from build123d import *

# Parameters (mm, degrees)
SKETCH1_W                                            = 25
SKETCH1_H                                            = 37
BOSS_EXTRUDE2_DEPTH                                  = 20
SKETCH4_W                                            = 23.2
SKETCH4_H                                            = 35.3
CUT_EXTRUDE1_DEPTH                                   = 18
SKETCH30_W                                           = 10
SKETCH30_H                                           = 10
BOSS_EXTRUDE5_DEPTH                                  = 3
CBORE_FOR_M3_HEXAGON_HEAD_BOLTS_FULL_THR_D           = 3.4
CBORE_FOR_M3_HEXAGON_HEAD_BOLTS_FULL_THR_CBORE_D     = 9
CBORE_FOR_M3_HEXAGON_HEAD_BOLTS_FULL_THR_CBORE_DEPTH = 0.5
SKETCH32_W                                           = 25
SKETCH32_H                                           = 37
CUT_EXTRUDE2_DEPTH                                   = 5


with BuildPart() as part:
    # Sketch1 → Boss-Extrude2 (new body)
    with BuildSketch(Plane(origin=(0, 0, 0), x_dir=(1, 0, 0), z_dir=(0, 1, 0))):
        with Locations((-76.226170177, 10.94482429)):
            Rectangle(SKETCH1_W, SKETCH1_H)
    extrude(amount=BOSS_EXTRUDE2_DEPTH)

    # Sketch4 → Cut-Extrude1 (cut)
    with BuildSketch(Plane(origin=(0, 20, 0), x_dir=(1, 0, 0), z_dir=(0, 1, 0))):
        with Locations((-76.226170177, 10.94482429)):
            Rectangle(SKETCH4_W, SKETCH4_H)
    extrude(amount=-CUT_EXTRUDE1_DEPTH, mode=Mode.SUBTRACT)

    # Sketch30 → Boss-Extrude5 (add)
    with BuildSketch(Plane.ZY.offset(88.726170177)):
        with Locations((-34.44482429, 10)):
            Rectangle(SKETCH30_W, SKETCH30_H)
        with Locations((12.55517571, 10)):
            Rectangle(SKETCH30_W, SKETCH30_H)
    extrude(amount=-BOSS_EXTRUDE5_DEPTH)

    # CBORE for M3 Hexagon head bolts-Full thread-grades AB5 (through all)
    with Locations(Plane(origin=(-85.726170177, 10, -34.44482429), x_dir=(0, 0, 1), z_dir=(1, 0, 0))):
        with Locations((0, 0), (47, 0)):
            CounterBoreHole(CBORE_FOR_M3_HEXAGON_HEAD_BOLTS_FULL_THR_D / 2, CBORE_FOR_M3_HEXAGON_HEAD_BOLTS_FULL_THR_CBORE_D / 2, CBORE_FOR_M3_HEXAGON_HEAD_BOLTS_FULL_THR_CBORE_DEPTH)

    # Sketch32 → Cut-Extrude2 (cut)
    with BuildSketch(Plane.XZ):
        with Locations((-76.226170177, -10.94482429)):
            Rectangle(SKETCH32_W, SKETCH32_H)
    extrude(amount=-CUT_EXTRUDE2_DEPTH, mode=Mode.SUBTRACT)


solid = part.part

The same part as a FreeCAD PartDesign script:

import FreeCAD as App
import Part
import Sketcher
from FreeCAD import Vector
Q = App.Units.Quantity

doc = App.newDocument("Part")
body = doc.addObject("PartDesign::Body", "Body")

sketch1 = body.newObject("Sketcher::SketchObject", "Sketch")
sketch1.AttachmentSupport = (doc.getObject("XZ_Plane"), [""])
sketch1.MapMode = "FlatFace"
sketch1.addGeometry(Part.LineSegment(Vector(-89, -29, 0), Vector(-89, 8, 0)), False)
sketch1.addGeometry(Part.LineSegment(Vector(-89, 8, 0), Vector(-64, 8, 0)), False)
sketch1.addGeometry(Part.LineSegment(Vector(-64, 8, 0), Vector(-64, -29, 0)), False)
sketch1.addGeometry(Part.LineSegment(Vector(-64, -29, 0), Vector(-89, -29, 0)), False)
sketch1.addConstraint(Sketcher.Constraint("Coincident", 0, 2, 1, 1))
sketch1.addConstraint(Sketcher.Constraint("Coincident", 1, 2, 2, 1))
sketch1.addConstraint(Sketcher.Constraint("Coincident", 2, 2, 3, 1))
sketch1.addConstraint(Sketcher.Constraint("Coincident", 3, 2, 0, 1))
sketch1.addConstraint(Sketcher.Constraint("Vertical", 0))
sketch1.addConstraint(Sketcher.Constraint("Horizontal", 1))
sketch1.addConstraint(Sketcher.Constraint("Vertical", 2))
sketch1.addConstraint(Sketcher.Constraint("Horizontal", 3))
sketch1.addConstraint(Sketcher.Constraint("DistanceX", 1, 1, 1, 2, Q("25 mm")))
sketch1.addConstraint(Sketcher.Constraint("DistanceY", 0, 1, 0, 2, Q("37 mm")))
sketch1.addConstraint(Sketcher.Constraint("DistanceX", 0, 2, -1, 1, Q("88.72617 mm")))
sketch1.addConstraint(Sketcher.Constraint("DistanceY", -1, 1, 0, 2, Q("7.555176 mm")))
pad1 = body.newObject("PartDesign::Pad", "Pad")
pad1.Profile = sketch1
pad1.Length = 20
pad1.Reversed = True

sketch2 = body.newObject("Sketcher::SketchObject", "Sketch001")
sketch2.AttachmentSupport = (doc.getObject("XZ_Plane"), [""])
sketch2.MapMode = "FlatFace"
sketch2.AttachmentOffset = App.Placement(Vector(0, 0, -20), App.Rotation())
sketch2.addGeometry(Part.LineSegment(Vector(-88, -29, 0), Vector(-88, 7, 0)), False)
sketch2.addGeometry(Part.LineSegment(Vector(-88, 7, 0), Vector(-65, 7, 0)), False)
sketch2.addGeometry(Part.LineSegment(Vector(-65, 7, 0), Vector(-65, -29, 0)), False)
sketch2.addGeometry(Part.LineSegment(Vector(-65, -29, 0), Vector(-88, -29, 0)), False)
sketch2.addConstraint(Sketcher.Constraint("Coincident", 0, 2, 1, 1))
sketch2.addConstraint(Sketcher.Constraint("Coincident", 1, 2, 2, 1))
sketch2.addConstraint(Sketcher.Constraint("Coincident", 2, 2, 3, 1))
sketch2.addConstraint(Sketcher.Constraint("Coincident", 3, 2, 0, 1))
sketch2.addConstraint(Sketcher.Constraint("Vertical", 0))
sketch2.addConstraint(Sketcher.Constraint("Horizontal", 1))
sketch2.addConstraint(Sketcher.Constraint("Vertical", 2))
sketch2.addConstraint(Sketcher.Constraint("Horizontal", 3))
sketch2.addConstraint(Sketcher.Constraint("DistanceX", 1, 1, 1, 2, Q("23.2 mm")))
sketch2.addConstraint(Sketcher.Constraint("DistanceY", 0, 1, 0, 2, Q("35.3 mm")))
sketch2.addConstraint(Sketcher.Constraint("DistanceX", 0, 2, -1, 1, Q("87.82617 mm")))
sketch2.addConstraint(Sketcher.Constraint("DistanceY", -1, 1, 0, 2, Q("6.705176 mm")))
pocket1 = body.newObject("PartDesign::Pocket", "Pocket")
pocket1.Profile = sketch2
pocket1.Length = 18
pocket1.Reversed = True

sketch3 = body.newObject("Sketcher::SketchObject", "Sketch002")
sketch3.AttachmentSupport = (doc.getObject("YZ_Plane"), [""])
sketch3.MapMode = "FlatFace"
sketch3.AttachmentOffset = App.Placement(Vector(0, 0, -88.72617), App.Rotation())
sketch3.addGeometry(Part.LineSegment(Vector(15, -39, 0), Vector(5, -39, 0)), False)
sketch3.addGeometry(Part.LineSegment(Vector(5, -39, 0), Vector(5, -29, 0)), False)
sketch3.addGeometry(Part.LineSegment(Vector(5, -29, 0), Vector(15, -29, 0)), False)
sketch3.addGeometry(Part.LineSegment(Vector(15, -29, 0), Vector(15, -39, 0)), False)
sketch3.addGeometry(Part.LineSegment(Vector(15, 8, 0), Vector(5, 8, 0)), False)
sketch3.addGeometry(Part.LineSegment(Vector(5, 8, 0), Vector(5, 18, 0)), False)
sketch3.addGeometry(Part.LineSegment(Vector(5, 18, 0), Vector(15, 18, 0)), False)
sketch3.addGeometry(Part.LineSegment(Vector(15, 18, 0), Vector(15, 8, 0)), False)
sketch3.addConstraint(Sketcher.Constraint("Coincident", 0, 2, 1, 1))
sketch3.addConstraint(Sketcher.Constraint("Coincident", 1, 2, 2, 1))
sketch3.addConstraint(Sketcher.Constraint("Coincident", 2, 2, 3, 1))
sketch3.addConstraint(Sketcher.Constraint("Coincident", 3, 2, 0, 1))
sketch3.addConstraint(Sketcher.Constraint("Coincident", 4, 2, 5, 1))
sketch3.addConstraint(Sketcher.Constraint("Coincident", 5, 2, 6, 1))
sketch3.addConstraint(Sketcher.Constraint("Coincident", 6, 2, 7, 1))
sketch3.addConstraint(Sketcher.Constraint("Coincident", 7, 2, 4, 1))
sketch3.addConstraint(Sketcher.Constraint("Horizontal", 0))
sketch3.addConstraint(Sketcher.Constraint("Vertical", 1))
sketch3.addConstraint(Sketcher.Constraint("Horizontal", 2))
sketch3.addConstraint(Sketcher.Constraint("Vertical", 3))
sketch3.addConstraint(Sketcher.Constraint("Horizontal", 4))
sketch3.addConstraint(Sketcher.Constraint("Vertical", 5))
sketch3.addConstraint(Sketcher.Constraint("Horizontal", 6))
sketch3.addConstraint(Sketcher.Constraint("Vertical", 7))
sketch3.addConstraint(Sketcher.Constraint("Vertical", 1, 2, 4, 2))
sketch3.addConstraint(Sketcher.Constraint("Vertical", 3, 2, 6, 2))
sketch3.addConstraint(Sketcher.Constraint("Equal", 6, 1))
sketch3.addConstraint(Sketcher.Constraint("Equal", 3, 5))
sketch3.addConstraint(Sketcher.Constraint("DistanceX", 0, 2, 0, 1, Q("10 mm")))
sketch3.addConstraint(Sketcher.Constraint("DistanceX", -1, 1, 0, 2, Q("5 mm")))
sketch3.addConstraint(Sketcher.Constraint("DistanceY", 1, 2, 4, 2, Q("37 mm")))
sketch3.addConstraint(Sketcher.Constraint("DistanceY", 0, 2, -1, 1, Q("39.444824 mm")))
pad2 = body.newObject("PartDesign::Pad", "Pad001")
pad2.Profile = sketch3
pad2.Length = 3

sketch4 = body.newObject("Sketcher::SketchObject", "Sketch003")
sketch4.AttachmentSupport = (doc.getObject("YZ_Plane"), [""])
sketch4.MapMode = "FlatFace"
sketch4.AttachmentOffset = App.Placement(Vector(0, 0, -85.72617), App.Rotation())
sketch4.addGeometry(Part.Circle(Vector(10, -34.4, 0), Vector(0, 0, 1), 1.7), False)
sketch4.addGeometry(Part.Circle(Vector(10, 12.6, 0), Vector(0, 0, 1), 1.7), False)
sketch4.addConstraint(Sketcher.Constraint("Equal", 0, 1))
sketch4.addConstraint(Sketcher.Constraint("Vertical", 0, 3, 1, 3))
sketch4.addConstraint(Sketcher.Constraint("Diameter", 0, Q("3.4 mm")))
sketch4.addConstraint(Sketcher.Constraint("DistanceX", -1, 1, 0, 3, Q("10 mm")))
sketch4.addConstraint(Sketcher.Constraint("DistanceY", 0, 3, 1, 3, Q("47 mm")))
sketch4.addConstraint(Sketcher.Constraint("DistanceY", 0, 3, -1, 1, Q("34.444824 mm")))
doc.recompute()
hole = body.newObject("PartDesign::Hole", "Hole")
hole.Profile = sketch4
hole.ThreadType = "None"
hole.Diameter = 3.4
hole.DepthType = "ThroughAll"
hole.HoleCutType = "Counterbore"
hole.HoleCutDiameter = 9
hole.HoleCutDepth = 0.5

sketch5 = body.newObject("Sketcher::SketchObject", "Sketch004")
sketch5.AttachmentSupport = (doc.getObject("XZ_Plane"), [""])
sketch5.MapMode = "FlatFace"
sketch5.addGeometry(Part.LineSegment(Vector(-89, 8, 0), Vector(-89, -29, 0)), False)
sketch5.addGeometry(Part.LineSegment(Vector(-89, -29, 0), Vector(-64, -29, 0)), False)
sketch5.addGeometry(Part.LineSegment(Vector(-64, -29, 0), Vector(-64, 8, 0)), False)
sketch5.addGeometry(Part.LineSegment(Vector(-64, 8, 0), Vector(-89, 8, 0)), False)
sketch5.addConstraint(Sketcher.Constraint("Coincident", 0, 2, 1, 1))
sketch5.addConstraint(Sketcher.Constraint("Coincident", 1, 2, 2, 1))
sketch5.addConstraint(Sketcher.Constraint("Coincident", 2, 2, 3, 1))
sketch5.addConstraint(Sketcher.Constraint("Coincident", 3, 2, 0, 1))
sketch5.addConstraint(Sketcher.Constraint("Vertical", 0))
sketch5.addConstraint(Sketcher.Constraint("Horizontal", 1))
sketch5.addConstraint(Sketcher.Constraint("Vertical", 2))
sketch5.addConstraint(Sketcher.Constraint("Horizontal", 3))
sketch5.addConstraint(Sketcher.Constraint("DistanceX", 1, 1, 1, 2, Q("25 mm")))
sketch5.addConstraint(Sketcher.Constraint("DistanceY", 0, 2, 0, 1, Q("37 mm")))
sketch5.addConstraint(Sketcher.Constraint("DistanceX", 0, 2, -1, 1, Q("88.72617 mm")))
sketch5.addConstraint(Sketcher.Constraint("DistanceY", 0, 2, -1, 1, Q("29.444824 mm")))
pocket2 = body.newObject("PartDesign::Pocket", "Pocket001")
pocket2.Profile = sketch5
pocket2.Length = 5

doc.recompute()
